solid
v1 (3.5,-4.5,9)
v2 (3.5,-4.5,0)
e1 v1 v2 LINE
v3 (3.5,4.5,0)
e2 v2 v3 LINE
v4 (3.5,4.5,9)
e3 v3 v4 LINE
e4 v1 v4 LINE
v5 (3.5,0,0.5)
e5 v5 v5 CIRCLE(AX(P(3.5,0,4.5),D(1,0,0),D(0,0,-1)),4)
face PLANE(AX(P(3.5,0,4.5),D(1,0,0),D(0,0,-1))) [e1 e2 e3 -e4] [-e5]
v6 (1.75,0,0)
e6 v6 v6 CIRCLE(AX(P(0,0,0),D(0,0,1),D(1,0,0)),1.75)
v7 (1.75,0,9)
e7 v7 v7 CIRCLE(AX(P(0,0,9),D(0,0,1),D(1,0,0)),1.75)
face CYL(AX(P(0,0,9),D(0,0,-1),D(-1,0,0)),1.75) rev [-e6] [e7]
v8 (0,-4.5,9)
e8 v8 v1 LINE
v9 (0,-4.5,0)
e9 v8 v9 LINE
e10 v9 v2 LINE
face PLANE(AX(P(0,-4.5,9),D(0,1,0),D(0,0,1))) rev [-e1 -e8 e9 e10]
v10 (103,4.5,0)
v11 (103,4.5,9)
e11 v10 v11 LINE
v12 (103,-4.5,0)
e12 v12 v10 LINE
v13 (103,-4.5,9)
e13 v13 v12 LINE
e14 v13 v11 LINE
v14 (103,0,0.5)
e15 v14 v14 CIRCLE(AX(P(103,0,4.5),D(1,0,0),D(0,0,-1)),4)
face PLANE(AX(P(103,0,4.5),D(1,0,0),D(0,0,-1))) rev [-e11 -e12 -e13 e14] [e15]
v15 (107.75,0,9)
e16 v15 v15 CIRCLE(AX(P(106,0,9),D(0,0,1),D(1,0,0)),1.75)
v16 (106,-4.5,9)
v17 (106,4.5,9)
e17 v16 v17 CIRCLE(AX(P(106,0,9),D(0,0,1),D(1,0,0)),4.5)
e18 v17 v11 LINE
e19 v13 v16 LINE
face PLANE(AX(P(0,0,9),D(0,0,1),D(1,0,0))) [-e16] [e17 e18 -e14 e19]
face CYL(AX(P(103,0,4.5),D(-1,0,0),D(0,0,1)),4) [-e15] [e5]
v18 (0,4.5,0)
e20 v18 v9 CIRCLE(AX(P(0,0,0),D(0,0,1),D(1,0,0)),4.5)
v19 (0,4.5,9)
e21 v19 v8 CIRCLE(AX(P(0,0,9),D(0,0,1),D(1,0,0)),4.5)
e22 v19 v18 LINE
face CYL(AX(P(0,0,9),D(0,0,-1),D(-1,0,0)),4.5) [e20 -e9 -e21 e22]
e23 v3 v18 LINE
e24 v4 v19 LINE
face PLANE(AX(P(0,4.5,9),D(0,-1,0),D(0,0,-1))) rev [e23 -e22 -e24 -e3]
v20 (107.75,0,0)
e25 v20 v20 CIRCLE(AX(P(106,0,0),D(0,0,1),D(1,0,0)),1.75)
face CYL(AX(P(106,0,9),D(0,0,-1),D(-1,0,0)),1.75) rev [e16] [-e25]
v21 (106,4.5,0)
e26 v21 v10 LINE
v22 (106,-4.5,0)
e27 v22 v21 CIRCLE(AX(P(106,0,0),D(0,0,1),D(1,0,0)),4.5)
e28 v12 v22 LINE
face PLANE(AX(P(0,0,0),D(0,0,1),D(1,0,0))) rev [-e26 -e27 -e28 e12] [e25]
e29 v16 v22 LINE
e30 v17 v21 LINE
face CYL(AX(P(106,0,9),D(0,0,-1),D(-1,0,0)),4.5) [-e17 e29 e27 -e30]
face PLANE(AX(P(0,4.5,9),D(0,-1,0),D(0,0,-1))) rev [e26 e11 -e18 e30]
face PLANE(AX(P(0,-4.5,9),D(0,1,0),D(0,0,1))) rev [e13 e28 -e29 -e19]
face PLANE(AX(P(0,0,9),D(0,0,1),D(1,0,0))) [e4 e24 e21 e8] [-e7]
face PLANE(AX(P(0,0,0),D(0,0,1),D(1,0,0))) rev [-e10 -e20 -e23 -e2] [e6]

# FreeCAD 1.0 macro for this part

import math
import FreeCAD as App
import Part
import Sketcher
from FreeCAD import Vector

doc = App.newDocument("Part")
body = doc.addObject("PartDesign::Body", "Body")

# Sketch on XY plane
sketch1 = body.newObject("Sketcher::SketchObject", "Sketch")
sketch1.AttachmentSupport = (doc.getObject("XY_Plane"), [""])
sketch1.MapMode = "FlatFace"
sketch1.addGeometry(Part.LineSegment(Vector(106, 4.5, 0), Vector(0, 4.5, 0)), False)
sketch1.addGeometry(Part.ArcOfCircle(Part.Circle(Vector(0, 0, 0), Vector(0, 0, 1), 4.5), math.radians(90), math.radians(270)), False)
sketch1.addGeometry(Part.LineSegment(Vector(0, -4.5, 0), Vector(106, -4.5, 0)), False)
sketch1.addGeometry(Part.ArcOfCircle(Part.Circle(Vector(106, 0, 0), Vector(0, 0, 1), 4.5), math.radians(-90), math.radians(90)), False)
sketch1.addGeometry(Part.Circle(Vector(106, 0, 0), Vector(0, 0, 1), 1.75), False)
sketch1.addGeometry(Part.Circle(Vector(0, 0, 0), Vector(0, 0, 1), 1.75), False)
sketch1.addConstraint(Sketcher.Constraint("Tangent", 0, 2, 1, 1))
sketch1.addConstraint(Sketcher.Constraint("Tangent", 1, 2, 2, 1))
sketch1.addConstraint(Sketcher.Constraint("Tangent", 2, 2, 3, 1))
sketch1.addConstraint(Sketcher.Constraint("Tangent", 3, 2, 0, 1))
sketch1.addConstraint(Sketcher.Constraint("Horizontal", 0))
sketch1.addConstraint(Sketcher.Constraint("Horizontal", 2))
sketch1.addConstraint(Sketcher.Constraint("Coincident", 1, 3, -1, 1))
sketch1.addConstraint(Sketcher.Constraint("Coincident", 5, 3, -1, 1))
sketch1.addConstraint(Sketcher.Constraint("Coincident", 4, 3, 3, 3))
sketch1.addConstraint(Sketcher.Constraint("Equal", 4, 5))
sketch1.addConstraint(Sketcher.Constraint("Diameter", 4, 3.5))
sketch1.addConstraint(Sketcher.Constraint("Radius", 1, 4.5))
sketch1.addConstraint(Sketcher.Constraint("DistanceX", 0, 2, 0, 1, 106.0))
pad1 = body.newObject("PartDesign::Pad", "Pad")
pad1.Profile = sketch1
pad1.Length = 9

# Sketch on YZ plane
sketch2 = body.newObject("Sketcher::SketchObject", "Sketch001")
sketch2.AttachmentSupport = (doc.getObject("YZ_Plane"), [""])
sketch2.MapMode = "FlatFace"
sketch2.AttachmentOffset = App.Placement(Vector(0, 0, 3.5), App.Rotation())
sketch2.addGeometry(Part.Circle(Vector(0, 4.5, 0), Vector(0, 0, 1), 7.5), False)
sketch2.addGeometry(Part.Circle(Vector(0, 4.5, 0), Vector(0, 0, 1), 4), False)
sketch2.addConstraint(Sketcher.Constraint("Coincident", 1, 3, 0, 3))
sketch2.addConstraint(Sketcher.Constraint("PointOnObject", 0, 3, -2))
sketch2.addConstraint(Sketcher.Constraint("Diameter", 0, 15.0))
sketch2.addConstraint(Sketcher.Constraint("Diameter", 1, 8.0))
sketch2.addConstraint(Sketcher.Constraint("DistanceY", -1, 1, 0, 3, 4.5))
pocket1 = body.newObject("PartDesign::Pocket", "Pocket")
pocket1.Profile = sketch2
pocket1.Length = 99.5
pocket1.Reversed = True

doc.recompute()
